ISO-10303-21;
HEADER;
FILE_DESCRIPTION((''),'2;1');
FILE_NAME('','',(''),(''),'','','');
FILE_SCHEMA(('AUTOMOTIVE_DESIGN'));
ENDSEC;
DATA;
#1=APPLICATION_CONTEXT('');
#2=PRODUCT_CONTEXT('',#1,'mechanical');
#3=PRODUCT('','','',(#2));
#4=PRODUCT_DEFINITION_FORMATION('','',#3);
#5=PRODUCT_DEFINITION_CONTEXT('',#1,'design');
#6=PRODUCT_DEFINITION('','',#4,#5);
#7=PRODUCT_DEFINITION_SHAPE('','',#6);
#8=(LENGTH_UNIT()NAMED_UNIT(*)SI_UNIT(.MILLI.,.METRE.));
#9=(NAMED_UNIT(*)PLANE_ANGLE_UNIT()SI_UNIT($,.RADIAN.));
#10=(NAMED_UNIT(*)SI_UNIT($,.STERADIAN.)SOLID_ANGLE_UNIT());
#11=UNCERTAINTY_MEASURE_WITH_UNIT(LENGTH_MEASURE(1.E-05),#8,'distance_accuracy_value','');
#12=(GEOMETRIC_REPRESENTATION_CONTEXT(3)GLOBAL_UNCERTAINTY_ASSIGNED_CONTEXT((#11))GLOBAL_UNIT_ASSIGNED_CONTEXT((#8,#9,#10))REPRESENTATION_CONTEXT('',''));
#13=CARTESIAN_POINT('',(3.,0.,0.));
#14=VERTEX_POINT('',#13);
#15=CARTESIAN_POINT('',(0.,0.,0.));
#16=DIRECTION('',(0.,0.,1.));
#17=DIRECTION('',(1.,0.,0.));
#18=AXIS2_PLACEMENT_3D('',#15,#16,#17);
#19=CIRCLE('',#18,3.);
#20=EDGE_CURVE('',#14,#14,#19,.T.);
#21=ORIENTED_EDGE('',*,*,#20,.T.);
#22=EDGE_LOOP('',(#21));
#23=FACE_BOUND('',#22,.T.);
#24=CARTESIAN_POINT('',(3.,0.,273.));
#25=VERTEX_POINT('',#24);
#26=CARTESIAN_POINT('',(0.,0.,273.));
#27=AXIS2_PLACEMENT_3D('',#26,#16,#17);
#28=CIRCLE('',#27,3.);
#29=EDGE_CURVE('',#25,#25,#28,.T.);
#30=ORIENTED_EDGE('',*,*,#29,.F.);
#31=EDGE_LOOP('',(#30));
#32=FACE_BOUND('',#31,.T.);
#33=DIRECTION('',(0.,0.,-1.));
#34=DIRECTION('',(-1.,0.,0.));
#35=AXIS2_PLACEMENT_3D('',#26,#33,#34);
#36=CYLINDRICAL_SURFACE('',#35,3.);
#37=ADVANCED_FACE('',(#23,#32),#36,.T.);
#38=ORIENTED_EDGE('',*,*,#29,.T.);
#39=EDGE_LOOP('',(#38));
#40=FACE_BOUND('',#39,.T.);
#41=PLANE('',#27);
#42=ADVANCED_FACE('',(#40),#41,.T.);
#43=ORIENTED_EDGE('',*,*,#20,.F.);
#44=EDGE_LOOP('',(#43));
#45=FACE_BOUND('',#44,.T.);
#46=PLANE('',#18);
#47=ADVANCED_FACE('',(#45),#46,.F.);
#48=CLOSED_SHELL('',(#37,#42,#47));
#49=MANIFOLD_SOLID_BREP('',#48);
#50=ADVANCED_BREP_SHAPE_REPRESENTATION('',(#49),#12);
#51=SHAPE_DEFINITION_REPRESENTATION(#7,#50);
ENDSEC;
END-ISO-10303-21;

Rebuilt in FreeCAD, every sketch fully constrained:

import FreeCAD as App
import Part
import Sketcher

V = App.Vector

doc = App.newDocument("Part")
body = doc.addObject("PartDesign::Body", "Body")

# Sketch on XY plane
sketch1 = body.newObject("Sketcher::SketchObject", "Sketch")
sketch1.AttachmentSupport = (doc.getObject("XY_Plane"), [""])
sketch1.MapMode = "FlatFace"
sketch1.addGeometry(Part.Circle(V(0, 0, 0), V(0, 0, 1), 3), False)
sketch1.addConstraint([
    Sketcher.Constraint("Coincident", 0, 3, -1, 1),
    Sketcher.Constraint("Diameter", 0, 6.0),
])
pad1 = body.newObject("PartDesign::Pad", "Pad")
pad1.Profile = sketch1
pad1.Length = 273

doc.recompute()
